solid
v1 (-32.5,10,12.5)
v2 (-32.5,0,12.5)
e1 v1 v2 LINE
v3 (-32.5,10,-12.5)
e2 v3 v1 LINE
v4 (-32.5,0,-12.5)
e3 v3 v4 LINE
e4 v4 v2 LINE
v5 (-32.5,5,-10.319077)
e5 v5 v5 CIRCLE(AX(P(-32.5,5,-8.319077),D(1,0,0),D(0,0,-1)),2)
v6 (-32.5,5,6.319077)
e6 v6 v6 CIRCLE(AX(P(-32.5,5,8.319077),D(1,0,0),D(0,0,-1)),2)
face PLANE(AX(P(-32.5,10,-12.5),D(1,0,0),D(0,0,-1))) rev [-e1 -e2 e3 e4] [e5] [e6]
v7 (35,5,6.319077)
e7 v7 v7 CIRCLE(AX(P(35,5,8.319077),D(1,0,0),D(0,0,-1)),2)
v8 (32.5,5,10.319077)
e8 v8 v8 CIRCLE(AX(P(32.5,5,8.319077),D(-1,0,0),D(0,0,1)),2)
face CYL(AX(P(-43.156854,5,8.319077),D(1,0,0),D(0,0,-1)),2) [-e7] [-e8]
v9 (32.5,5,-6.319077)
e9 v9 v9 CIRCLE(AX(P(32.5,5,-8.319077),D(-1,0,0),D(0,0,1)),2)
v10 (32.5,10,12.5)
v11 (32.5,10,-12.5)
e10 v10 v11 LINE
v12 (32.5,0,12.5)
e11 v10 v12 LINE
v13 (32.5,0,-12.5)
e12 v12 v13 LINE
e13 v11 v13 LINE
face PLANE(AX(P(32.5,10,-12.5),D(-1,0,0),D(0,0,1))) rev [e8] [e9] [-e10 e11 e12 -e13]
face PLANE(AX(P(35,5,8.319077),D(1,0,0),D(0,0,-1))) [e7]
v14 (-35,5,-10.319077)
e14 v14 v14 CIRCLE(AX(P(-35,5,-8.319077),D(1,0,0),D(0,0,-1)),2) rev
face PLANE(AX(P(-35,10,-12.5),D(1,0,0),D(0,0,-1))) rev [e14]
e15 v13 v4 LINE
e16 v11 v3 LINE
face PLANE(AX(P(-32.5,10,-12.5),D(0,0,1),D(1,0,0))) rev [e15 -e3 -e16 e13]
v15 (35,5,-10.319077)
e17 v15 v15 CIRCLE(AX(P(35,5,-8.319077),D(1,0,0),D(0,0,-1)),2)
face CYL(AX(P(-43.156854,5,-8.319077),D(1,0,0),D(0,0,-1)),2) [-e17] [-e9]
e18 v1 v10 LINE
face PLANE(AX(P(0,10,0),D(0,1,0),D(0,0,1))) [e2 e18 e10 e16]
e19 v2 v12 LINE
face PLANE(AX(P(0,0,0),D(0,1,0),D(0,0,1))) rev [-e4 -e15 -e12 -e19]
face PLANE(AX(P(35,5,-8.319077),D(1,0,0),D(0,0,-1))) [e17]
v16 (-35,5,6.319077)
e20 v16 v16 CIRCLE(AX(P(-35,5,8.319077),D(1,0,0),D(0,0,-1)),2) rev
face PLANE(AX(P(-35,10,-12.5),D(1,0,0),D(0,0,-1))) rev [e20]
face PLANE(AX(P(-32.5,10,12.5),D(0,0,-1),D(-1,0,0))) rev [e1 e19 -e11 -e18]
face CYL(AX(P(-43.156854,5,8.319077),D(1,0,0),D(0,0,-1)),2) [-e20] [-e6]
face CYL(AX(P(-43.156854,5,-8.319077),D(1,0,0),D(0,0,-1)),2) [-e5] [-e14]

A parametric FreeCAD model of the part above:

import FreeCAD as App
import Part
import Sketcher
from FreeCAD import Vector
Q = App.Units.Quantity


def add_polygon(sketch, points):
    """Adds a closed chain of lines whose ends are joined by coincident constraints."""
    first, n = sketch.GeometryCount, len(points)
    for a, b in zip(points, points[1:] + points[:1]):
        sketch.addGeometry(Part.LineSegment(App.Vector(*a, 0), App.Vector(*b, 0)), False)
    for i in range(n):
        sketch.addConstraint(Sketcher.Constraint("Coincident", first + i, 2, first + (i + 1) % n, 1))

doc = App.newDocument("Part")
body = doc.addObject("PartDesign::Body", "Body")

# Sketch on XZ plane
sketch1 = doc.addObject("Sketcher::SketchObject", "Sketch")
body.addObject(sketch1)
sketch1.AttachmentSupport = (doc.XZ_Plane, [""])
sketch1.MapMode = "FlatFace"
add_polygon(sketch1, [(-32, -12), (-32, 12), (32, 12), (32, -12)])  # lines 0-3
sketch1.addConstraint(Sketcher.Constraint("Vertical", 0))
sketch1.addConstraint(Sketcher.Constraint("Horizontal", 1))
sketch1.addConstraint(Sketcher.Constraint("Vertical", 2))
sketch1.addConstraint(Sketcher.Constraint("Horizontal", 3))
sketch1.addConstraint(Sketcher.Constraint("Symmetric", 0, 2, 2, 2, -1, 1))
sketch1.addConstraint(Sketcher.Constraint("DistanceX", 1, 1, 1, 2, Q("65 mm")))
sketch1.addConstraint(Sketcher.Constraint("DistanceY", 0, 1, 0, 2, Q("25 mm")))
pad1 = doc.addObject("PartDesign::Pad", "Pad")
body.addObject(pad1)
pad1.Profile = sketch1
pad1.Length = 10
pad1.Reversed = True

# Sketch on YZ plane
sketch2 = doc.addObject("Sketcher::SketchObject", "Sketch001")
body.addObject(sketch2)
sketch2.AttachmentSupport = (doc.YZ_Plane, [""])
sketch2.MapMode = "FlatFace"
sketch2.AttachmentOffset = App.Placement(Vector(0, 0, 32.5), App.Rotation())
sketch2.addGeometry(Part.Circle(Vector(5, 8.3, 0), Vector(0, 0, 1), 2), False)
sketch2.addGeometry(Part.Circle(Vector(5, -8.3, 0), Vector(0, 0, 1), 2), False)
sketch2.addConstraint(Sketcher.Constraint("Equal", 0, 1))
sketch2.addConstraint(Sketcher.Constraint("Symmetric", 0, 3, 1, 3, -1))
sketch2.addConstraint(Sketcher.Constraint("Diameter", 0, Q("4 mm")))
sketch2.addConstraint(Sketcher.Constraint("DistanceX", -1, 1, 0, 3, Q("5 mm")))
sketch2.addConstraint(Sketcher.Constraint("DistanceY", -1, 1, 0, 3, Q("8.319077 mm")))
pad2 = doc.addObject("PartDesign::Pad", "Pad001")
body.addObject(pad2)
pad2.Profile = sketch2
pad2.Type = "TwoLengths"
pad2.Length = 2.5
pad2.Length2 = 67.5

doc.recompute()
